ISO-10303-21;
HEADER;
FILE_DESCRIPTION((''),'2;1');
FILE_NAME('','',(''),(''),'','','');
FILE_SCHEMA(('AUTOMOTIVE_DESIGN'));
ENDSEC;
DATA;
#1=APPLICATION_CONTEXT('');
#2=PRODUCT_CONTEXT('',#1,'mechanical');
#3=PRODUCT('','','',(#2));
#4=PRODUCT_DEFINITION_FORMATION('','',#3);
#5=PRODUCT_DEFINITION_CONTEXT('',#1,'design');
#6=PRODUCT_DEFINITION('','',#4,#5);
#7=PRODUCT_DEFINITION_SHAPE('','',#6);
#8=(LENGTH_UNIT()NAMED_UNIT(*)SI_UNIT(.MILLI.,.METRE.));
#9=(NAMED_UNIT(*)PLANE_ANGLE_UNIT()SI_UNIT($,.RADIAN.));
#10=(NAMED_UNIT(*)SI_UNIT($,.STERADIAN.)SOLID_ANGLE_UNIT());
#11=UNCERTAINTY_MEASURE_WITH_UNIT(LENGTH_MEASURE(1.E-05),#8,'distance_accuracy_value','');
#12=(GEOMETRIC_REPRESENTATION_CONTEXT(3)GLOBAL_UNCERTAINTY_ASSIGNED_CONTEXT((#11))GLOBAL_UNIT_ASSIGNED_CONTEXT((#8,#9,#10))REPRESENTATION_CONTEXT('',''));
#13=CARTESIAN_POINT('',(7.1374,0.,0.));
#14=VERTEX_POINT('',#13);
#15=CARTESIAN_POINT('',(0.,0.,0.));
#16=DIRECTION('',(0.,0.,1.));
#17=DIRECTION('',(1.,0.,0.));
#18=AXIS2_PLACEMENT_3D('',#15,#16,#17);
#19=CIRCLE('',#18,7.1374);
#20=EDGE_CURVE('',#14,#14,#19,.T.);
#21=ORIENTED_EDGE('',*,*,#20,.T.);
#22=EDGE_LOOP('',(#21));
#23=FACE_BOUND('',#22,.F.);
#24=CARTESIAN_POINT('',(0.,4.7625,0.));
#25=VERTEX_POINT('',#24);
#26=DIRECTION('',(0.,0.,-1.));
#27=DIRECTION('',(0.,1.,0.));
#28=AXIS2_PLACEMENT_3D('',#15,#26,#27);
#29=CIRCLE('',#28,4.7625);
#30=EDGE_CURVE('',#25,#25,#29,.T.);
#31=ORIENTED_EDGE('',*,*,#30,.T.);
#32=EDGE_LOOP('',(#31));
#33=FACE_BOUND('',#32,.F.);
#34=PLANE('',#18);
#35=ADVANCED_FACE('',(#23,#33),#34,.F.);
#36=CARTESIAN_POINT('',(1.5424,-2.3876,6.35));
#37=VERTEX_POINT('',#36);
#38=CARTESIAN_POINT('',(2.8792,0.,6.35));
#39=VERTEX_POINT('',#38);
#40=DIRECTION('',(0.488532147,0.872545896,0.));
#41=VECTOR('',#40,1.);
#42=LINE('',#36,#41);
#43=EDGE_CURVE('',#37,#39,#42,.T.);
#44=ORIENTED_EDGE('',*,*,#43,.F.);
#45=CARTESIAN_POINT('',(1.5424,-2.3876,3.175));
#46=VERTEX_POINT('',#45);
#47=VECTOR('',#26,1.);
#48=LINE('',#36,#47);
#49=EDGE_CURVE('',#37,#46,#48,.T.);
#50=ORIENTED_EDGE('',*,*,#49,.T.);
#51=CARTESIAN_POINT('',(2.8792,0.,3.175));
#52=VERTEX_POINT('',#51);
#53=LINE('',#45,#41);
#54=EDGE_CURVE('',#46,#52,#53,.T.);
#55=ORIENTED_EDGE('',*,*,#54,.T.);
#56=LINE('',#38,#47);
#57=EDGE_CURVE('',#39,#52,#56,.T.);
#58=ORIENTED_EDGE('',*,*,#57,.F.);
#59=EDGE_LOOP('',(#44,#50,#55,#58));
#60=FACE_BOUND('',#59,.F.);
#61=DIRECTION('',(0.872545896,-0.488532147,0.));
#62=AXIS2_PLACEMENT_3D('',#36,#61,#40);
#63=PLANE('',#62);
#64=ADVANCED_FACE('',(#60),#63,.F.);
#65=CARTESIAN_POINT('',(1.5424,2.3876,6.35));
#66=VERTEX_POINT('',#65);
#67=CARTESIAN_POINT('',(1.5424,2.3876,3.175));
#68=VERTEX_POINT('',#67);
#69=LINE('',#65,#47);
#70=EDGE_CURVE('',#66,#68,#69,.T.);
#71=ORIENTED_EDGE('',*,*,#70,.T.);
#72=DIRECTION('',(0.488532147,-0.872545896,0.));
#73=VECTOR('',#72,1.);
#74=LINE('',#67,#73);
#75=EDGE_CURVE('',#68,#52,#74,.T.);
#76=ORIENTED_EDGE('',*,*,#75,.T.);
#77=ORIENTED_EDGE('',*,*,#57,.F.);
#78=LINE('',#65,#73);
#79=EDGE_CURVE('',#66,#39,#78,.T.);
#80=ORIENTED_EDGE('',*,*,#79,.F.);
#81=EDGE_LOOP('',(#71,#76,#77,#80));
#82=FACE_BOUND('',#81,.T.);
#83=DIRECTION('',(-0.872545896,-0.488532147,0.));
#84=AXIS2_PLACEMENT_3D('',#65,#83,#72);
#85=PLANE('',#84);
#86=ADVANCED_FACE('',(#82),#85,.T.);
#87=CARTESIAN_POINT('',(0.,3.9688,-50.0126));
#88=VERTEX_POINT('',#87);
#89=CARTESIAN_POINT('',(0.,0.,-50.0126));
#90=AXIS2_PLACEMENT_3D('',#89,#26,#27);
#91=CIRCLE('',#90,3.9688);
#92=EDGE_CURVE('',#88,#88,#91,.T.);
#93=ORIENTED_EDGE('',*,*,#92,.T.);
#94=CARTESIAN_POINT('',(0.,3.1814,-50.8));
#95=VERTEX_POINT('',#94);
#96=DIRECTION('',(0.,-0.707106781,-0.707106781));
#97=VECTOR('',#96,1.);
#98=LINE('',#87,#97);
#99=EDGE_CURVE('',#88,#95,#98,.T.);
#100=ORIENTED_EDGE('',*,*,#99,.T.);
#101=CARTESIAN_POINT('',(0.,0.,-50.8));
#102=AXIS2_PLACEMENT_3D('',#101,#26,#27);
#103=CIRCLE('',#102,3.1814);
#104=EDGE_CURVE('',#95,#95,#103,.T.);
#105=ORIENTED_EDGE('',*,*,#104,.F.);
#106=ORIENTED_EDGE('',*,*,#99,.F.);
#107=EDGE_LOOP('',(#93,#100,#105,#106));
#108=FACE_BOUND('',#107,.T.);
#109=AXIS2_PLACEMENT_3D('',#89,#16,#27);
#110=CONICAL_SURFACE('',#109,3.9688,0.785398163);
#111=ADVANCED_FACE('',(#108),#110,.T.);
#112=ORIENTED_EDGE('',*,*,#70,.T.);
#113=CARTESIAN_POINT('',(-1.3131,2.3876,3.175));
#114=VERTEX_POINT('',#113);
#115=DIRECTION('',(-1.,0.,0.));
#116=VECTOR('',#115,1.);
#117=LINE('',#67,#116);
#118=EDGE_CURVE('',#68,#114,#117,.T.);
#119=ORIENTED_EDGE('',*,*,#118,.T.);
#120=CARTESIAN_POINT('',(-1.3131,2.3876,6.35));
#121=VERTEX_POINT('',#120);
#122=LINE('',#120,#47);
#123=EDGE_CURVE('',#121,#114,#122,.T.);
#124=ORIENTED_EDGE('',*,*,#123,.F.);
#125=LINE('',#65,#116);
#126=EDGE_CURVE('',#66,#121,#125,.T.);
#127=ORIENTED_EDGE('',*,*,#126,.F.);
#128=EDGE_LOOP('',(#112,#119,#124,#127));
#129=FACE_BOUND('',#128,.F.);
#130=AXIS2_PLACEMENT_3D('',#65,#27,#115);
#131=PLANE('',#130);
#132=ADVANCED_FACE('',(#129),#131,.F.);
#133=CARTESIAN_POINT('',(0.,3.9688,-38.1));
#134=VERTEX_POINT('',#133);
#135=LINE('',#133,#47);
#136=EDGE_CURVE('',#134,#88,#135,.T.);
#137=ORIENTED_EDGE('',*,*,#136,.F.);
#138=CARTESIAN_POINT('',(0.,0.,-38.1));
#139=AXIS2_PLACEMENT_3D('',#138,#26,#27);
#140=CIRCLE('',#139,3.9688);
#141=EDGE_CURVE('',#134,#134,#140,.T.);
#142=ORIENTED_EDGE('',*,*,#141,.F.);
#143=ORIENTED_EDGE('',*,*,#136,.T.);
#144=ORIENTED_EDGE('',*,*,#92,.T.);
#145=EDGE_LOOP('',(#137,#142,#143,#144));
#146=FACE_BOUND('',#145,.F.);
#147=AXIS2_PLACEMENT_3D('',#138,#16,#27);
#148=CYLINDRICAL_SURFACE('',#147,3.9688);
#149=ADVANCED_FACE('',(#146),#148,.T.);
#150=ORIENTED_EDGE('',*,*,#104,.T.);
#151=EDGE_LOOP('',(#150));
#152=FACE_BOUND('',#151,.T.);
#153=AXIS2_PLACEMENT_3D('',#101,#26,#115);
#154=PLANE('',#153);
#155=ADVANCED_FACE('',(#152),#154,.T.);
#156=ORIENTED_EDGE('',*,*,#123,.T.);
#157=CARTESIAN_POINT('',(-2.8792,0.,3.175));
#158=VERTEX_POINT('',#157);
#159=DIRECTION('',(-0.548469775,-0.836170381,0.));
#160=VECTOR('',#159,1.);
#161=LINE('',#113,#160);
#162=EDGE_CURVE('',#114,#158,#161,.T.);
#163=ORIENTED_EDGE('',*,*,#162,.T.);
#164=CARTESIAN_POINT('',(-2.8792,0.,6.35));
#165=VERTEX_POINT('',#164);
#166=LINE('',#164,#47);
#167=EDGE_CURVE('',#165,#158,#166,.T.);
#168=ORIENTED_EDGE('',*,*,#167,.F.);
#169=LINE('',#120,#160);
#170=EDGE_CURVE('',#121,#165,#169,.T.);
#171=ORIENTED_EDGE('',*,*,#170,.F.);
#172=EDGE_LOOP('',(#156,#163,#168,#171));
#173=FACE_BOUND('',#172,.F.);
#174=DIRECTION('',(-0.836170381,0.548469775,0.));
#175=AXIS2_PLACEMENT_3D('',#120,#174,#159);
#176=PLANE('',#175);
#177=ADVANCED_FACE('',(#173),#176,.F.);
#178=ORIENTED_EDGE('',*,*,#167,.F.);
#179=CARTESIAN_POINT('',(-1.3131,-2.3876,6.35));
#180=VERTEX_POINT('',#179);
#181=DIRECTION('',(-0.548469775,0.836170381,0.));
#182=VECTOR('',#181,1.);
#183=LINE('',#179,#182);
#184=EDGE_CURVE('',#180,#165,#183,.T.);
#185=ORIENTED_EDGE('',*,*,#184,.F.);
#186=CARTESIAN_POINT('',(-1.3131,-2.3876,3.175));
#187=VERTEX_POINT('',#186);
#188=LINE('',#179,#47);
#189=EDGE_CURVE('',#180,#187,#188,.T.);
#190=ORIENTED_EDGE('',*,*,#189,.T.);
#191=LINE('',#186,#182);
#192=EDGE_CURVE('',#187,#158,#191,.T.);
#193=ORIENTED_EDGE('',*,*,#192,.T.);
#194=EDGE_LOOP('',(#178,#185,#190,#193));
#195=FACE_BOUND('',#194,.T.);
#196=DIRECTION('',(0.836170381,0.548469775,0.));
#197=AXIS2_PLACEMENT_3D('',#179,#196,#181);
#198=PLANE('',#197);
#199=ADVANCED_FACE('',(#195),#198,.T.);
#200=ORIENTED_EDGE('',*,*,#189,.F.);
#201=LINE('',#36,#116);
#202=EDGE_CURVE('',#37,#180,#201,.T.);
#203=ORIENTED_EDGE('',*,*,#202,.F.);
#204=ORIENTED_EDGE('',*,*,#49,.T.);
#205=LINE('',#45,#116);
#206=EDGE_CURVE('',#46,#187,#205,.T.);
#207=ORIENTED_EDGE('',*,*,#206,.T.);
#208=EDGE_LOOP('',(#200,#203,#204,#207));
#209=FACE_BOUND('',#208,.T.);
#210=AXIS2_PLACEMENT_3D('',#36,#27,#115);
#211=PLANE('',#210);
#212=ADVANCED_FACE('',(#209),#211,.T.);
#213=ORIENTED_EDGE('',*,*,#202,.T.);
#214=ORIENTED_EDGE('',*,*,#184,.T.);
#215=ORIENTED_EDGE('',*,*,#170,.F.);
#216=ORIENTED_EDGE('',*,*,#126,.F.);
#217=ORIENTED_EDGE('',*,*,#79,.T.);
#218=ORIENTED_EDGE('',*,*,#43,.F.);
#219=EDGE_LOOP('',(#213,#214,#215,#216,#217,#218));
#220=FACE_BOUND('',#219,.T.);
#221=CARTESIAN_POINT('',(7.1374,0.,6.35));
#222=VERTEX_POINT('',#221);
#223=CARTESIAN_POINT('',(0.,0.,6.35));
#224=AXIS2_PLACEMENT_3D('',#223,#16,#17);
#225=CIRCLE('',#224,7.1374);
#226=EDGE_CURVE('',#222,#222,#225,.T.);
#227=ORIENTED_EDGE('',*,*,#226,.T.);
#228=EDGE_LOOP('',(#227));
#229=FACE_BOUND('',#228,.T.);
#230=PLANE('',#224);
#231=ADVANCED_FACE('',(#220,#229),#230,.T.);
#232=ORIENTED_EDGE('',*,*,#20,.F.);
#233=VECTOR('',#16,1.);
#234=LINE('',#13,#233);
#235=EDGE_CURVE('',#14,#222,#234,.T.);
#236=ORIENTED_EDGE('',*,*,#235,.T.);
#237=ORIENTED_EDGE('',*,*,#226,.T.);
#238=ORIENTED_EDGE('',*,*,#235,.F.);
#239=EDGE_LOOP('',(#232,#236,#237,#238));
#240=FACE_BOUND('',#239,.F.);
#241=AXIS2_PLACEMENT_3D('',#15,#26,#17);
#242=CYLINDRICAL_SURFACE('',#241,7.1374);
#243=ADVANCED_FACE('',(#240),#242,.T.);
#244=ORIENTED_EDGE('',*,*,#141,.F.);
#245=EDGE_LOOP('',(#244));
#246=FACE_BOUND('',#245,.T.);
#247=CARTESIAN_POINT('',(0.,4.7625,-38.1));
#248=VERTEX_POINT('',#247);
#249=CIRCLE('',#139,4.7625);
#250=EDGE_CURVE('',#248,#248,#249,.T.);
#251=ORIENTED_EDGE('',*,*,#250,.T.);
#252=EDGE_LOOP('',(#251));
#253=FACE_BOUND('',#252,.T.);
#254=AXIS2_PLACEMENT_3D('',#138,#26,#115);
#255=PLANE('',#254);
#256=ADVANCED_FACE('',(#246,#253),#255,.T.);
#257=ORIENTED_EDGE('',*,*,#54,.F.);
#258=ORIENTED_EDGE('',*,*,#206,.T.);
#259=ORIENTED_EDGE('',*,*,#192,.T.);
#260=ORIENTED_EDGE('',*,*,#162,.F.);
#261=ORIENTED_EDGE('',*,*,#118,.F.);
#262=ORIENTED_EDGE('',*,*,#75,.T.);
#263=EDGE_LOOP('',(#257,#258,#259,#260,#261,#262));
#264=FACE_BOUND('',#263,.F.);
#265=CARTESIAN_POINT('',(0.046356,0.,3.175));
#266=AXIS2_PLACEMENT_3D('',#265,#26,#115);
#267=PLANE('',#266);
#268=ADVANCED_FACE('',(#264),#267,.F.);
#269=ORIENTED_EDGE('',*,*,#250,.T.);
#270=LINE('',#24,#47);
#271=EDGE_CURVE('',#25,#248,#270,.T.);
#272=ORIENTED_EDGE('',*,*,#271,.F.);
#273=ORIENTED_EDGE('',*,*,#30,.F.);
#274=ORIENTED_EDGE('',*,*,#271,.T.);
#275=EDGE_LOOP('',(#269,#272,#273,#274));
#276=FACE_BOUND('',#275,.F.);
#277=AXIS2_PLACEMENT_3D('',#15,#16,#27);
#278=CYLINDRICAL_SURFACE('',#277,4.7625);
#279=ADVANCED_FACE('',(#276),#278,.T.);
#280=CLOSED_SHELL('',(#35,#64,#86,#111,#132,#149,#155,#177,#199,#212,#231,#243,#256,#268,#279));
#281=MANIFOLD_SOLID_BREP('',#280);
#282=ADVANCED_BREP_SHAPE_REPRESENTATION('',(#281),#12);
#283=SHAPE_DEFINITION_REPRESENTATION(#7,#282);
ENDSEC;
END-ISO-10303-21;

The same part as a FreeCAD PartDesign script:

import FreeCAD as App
import Part
import Sketcher
Q = App.Units.Quantity


def edges_at(feature, points):
    """Names of the edges that pass closest to the given points."""
    edges = feature.Shape.Edges
    near = lambda p: min(range(len(edges)), key=lambda i: edges[i].distToShape(Part.Vertex(*p))[0])
    return sorted({f"Edge{near(p) + 1}" for p in points})

doc = App.newDocument("Part")
body = doc.addObject("PartDesign::Body", "Body")

sketch1 = doc.addObject("Sketcher::SketchObject", "Sketch")
body.addObject(sketch1)
sketch1.AttachmentSupport = (doc.XY_Plane, [""])
sketch1.MapMode = "FlatFace"
sketch1.addGeometry(Part.Circle(App.Vector(0, 0, 0), App.Vector(0, 0, 1), 7.1374), False)
sketch1.addConstraint([
    Sketcher.Constraint("Coincident", 0, 3, -1, 1),
    Sketcher.Constraint("Diameter", 0, Q("0.562 in")),
])
pad1 = doc.addObject("PartDesign::Pad", "Pad")
body.addObject(pad1)
pad1.Profile = sketch1
pad1.Length = Q("0.25 in")

sketch2 = doc.addObject("Sketcher::SketchObject", "Sketch001")
body.addObject(sketch2)
sketch2.AttachmentSupport = (doc.XY_Plane, [""])
sketch2.MapMode = "FlatFace"
sketch2.addGeometry(Part.Circle(App.Vector(0, 0, 0), App.Vector(0, 0, 1), 4.7625), False)
sketch2.addConstraint([
    Sketcher.Constraint("Coincident", 0, 3, -1, 1),
    Sketcher.Constraint("Diameter", 0, Q("0.375 in")),
])
pad2 = doc.addObject("PartDesign::Pad", "Pad001")
body.addObject(pad2)
pad2.Profile = sketch2
pad2.Length = Q("1.5 in")
pad2.Reversed = True

sketch3 = doc.addObject("Sketcher::SketchObject", "Sketch002")
body.addObject(sketch3)
sketch3.AttachmentSupport = (doc.XY_Plane, [""])
sketch3.MapMode = "FlatFace"
sketch3.AttachmentOffset = App.Placement(App.Vector(0, 0, -1.5 * 25.4), App.Rotation())
sketch3.addGeometry(Part.Circle(App.Vector(0, 0, 0), App.Vector(0, 0, 1), 3.9688), False)
sketch3.addConstraint([
    Sketcher.Constraint("Coincident", 0, 3, -1, 1),
    Sketcher.Constraint("Diameter", 0, Q("0.3125 in")),
])
pad3 = doc.addObject("PartDesign::Pad", "Pad002")
body.addObject(pad3)
pad3.Profile = sketch3
pad3.Length = Q("0.5 in")
pad3.Reversed = True

sketch4 = doc.addObject("Sketcher::SketchObject", "Sketch003")
body.addObject(sketch4)
sketch4.AttachmentSupport = (doc.XY_Plane, [""])
sketch4.MapMode = "FlatFace"
sketch4.AttachmentOffset = App.Placement(App.Vector(0, 0, 0.25 * 25.4), App.Rotation())
sketch4.addGeometry([
    Part.LineSegment(App.Vector(-2.8792, 0, 0), App.Vector(-1.3131, -2.3876, 0)),
    Part.LineSegment(App.Vector(-1.3131, -2.3876, 0), App.Vector(1.5424, -2.3876, 0)),
    Part.LineSegment(App.Vector(1.5424, -2.3876, 0), App.Vector(2.8792, 0, 0)),
    Part.LineSegment(App.Vector(2.8792, 0, 0), App.Vector(1.5424, 2.3876, 0)),
    Part.LineSegment(App.Vector(1.5424, 2.3876, 0), App.Vector(-1.3131, 2.3876, 0)),
    Part.LineSegment(App.Vector(-1.3131, 2.3876, 0), App.Vector(-2.8792, 0, 0)),
], False)
sketch4.addConstraint([
    Sketcher.Constraint("Coincident", 0, 2, 1, 1),
    Sketcher.Constraint("Coincident", 1, 2, 2, 1),
    Sketcher.Constraint("Coincident", 2, 2, 3, 1),
    Sketcher.Constraint("Coincident", 3, 2, 4, 1),
    Sketcher.Constraint("Coincident", 4, 2, 5, 1),
    Sketcher.Constraint("Coincident", 5, 2, 0, 1),
    Sketcher.Constraint("Horizontal", 1),
    Sketcher.Constraint("Horizontal", 4),
    Sketcher.Constraint("Symmetric", 2, 2, 5, 2, -1, 1),
    Sketcher.Constraint("Symmetric", 1, 2, 3, 2, -1),
    Sketcher.Constraint("PointOnObject", 2, 2, -1),
    Sketcher.Constraint("Vertical", 0, 2, 4, 2),
    Sketcher.Constraint("DistanceY", 0, 2, -1, 1, Q("0.094 in")),
    Sketcher.Constraint("DistanceX", 1, 1, 1, 2, Q("2.8555 mm")),
    Sketcher.Constraint("DistanceX", 0, 2, -1, 1, Q("0.0517 in")),
    Sketcher.Constraint("DistanceX", 5, 2, 2, 2, Q("0.2267 in")),
])
pocket1 = doc.addObject("PartDesign::Pocket", "Pocket")
body.addObject(pocket1)
pocket1.Profile = sketch4
pocket1.Length = Q("0.125 in")
doc.recompute()

chamfer = doc.addObject("PartDesign::Chamfer", "Chamfer")
body.addObject(chamfer)
chamfer.Base = (pocket1, edges_at(pocket1, [(0, -3.969, -50.8)]))
chamfer.Size = Q("0.031 in")

doc.recompute()
